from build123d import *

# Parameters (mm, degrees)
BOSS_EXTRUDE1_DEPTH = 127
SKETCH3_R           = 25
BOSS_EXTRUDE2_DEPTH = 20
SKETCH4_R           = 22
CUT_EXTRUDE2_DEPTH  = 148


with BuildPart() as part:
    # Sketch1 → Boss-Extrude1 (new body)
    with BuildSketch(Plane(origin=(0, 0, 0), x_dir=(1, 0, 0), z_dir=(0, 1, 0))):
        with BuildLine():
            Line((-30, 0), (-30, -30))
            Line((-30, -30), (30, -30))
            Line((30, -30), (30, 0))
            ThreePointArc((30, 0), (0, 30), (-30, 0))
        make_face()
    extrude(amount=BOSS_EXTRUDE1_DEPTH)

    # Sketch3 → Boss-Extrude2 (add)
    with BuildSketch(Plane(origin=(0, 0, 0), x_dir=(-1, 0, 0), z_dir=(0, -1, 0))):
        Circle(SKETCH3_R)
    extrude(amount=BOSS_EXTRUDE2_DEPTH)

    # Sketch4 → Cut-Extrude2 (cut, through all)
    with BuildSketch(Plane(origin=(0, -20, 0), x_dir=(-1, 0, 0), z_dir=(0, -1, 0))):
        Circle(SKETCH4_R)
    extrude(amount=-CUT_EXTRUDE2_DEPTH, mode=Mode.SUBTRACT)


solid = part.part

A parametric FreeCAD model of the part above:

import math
import FreeCAD as App
import Part
import Sketcher

V = App.Vector

doc = App.newDocument("Part")
body = doc.addObject("PartDesign::Body", "Body")

sketch1 = body.newObject("Sketcher::SketchObject", "Sketch")
sketch1.AttachmentSupport = (doc.getObject("XZ_Plane"), [""])
sketch1.MapMode = "FlatFace"
sketch1.addGeometry(Part.LineSegment(V(-30, 0, 0), V(-30, 30, 0)), False)
sketch1.addGeometry(Part.LineSegment(V(-30, 30, 0), V(30, 30, 0)), False)
sketch1.addGeometry(Part.LineSegment(V(30, 30, 0), V(30, 0, 0)), False)
sketch1.addGeometry(Part.ArcOfCircle(Part.Circle(V(0, 0, 0), V(0, 0, 1), 30), math.radians(180), math.radians(360)), False)
sketch1.addConstraint(Sketcher.Constraint("Coincident", 0, 2, 1, 1))
sketch1.addConstraint(Sketcher.Constraint("Coincident", 1, 2, 2, 1))
sketch1.addConstraint(Sketcher.Constraint("Tangent", 2, 2, 3, 2))
sketch1.addConstraint(Sketcher.Constraint("Tangent", 3, 1, 0, 1))
sketch1.addConstraint(Sketcher.Constraint("Vertical", 0))
sketch1.addConstraint(Sketcher.Constraint("Horizontal", 1))
sketch1.addConstraint(Sketcher.Constraint("Vertical", 2))
sketch1.addConstraint(Sketcher.Constraint("Coincident", 3, 3, -1, 1))
sketch1.addConstraint(Sketcher.Constraint("Radius", 3, 30.0))
sketch1.addConstraint(Sketcher.Constraint("DistanceY", 0, 1, 0, 2, 30.0))
pad1 = body.newObject("PartDesign::Pad", "Pad")
pad1.Profile = sketch1
pad1.Length = 127
pad1.Reversed = True

sketch2 = body.newObject("Sketcher::SketchObject", "Sketch001")
sketch2.AttachmentSupport = (doc.getObject("XZ_Plane"), [""])
sketch2.MapMode = "FlatFace"
sketch2.addGeometry(Part.Circle(V(0, 0, 0), V(0, 0, 1), 25), False)
sketch2.addConstraint(Sketcher.Constraint("Coincident", 0, 3, -1, 1))
sketch2.addConstraint(Sketcher.Constraint("Diameter", 0, 50.0))
pad2 = body.newObject("PartDesign::Pad", "Pad001")
pad2.Profile = sketch2
pad2.Length = 20

sketch3 = body.newObject("Sketcher::SketchObject", "Sketch002")
sketch3.AttachmentSupport = (doc.getObject("XZ_Plane"), [""])
sketch3.MapMode = "FlatFace"
sketch3.AttachmentOffset = App.Placement(V(0, 0, 20), App.Rotation())
sketch3.addGeometry(Part.Circle(V(0, 0, 0), V(0, 0, 1), 22), False)
sketch3.addConstraint(Sketcher.Constraint("Coincident", 0, 3, -1, 1))
sketch3.addConstraint(Sketcher.Constraint("Diameter", 0, 44.0))
pocket1 = body.newObject("PartDesign::Pocket", "Pocket")
pocket1.Profile = sketch3
pocket1.Type = "ThroughAll"

doc.recompute()
